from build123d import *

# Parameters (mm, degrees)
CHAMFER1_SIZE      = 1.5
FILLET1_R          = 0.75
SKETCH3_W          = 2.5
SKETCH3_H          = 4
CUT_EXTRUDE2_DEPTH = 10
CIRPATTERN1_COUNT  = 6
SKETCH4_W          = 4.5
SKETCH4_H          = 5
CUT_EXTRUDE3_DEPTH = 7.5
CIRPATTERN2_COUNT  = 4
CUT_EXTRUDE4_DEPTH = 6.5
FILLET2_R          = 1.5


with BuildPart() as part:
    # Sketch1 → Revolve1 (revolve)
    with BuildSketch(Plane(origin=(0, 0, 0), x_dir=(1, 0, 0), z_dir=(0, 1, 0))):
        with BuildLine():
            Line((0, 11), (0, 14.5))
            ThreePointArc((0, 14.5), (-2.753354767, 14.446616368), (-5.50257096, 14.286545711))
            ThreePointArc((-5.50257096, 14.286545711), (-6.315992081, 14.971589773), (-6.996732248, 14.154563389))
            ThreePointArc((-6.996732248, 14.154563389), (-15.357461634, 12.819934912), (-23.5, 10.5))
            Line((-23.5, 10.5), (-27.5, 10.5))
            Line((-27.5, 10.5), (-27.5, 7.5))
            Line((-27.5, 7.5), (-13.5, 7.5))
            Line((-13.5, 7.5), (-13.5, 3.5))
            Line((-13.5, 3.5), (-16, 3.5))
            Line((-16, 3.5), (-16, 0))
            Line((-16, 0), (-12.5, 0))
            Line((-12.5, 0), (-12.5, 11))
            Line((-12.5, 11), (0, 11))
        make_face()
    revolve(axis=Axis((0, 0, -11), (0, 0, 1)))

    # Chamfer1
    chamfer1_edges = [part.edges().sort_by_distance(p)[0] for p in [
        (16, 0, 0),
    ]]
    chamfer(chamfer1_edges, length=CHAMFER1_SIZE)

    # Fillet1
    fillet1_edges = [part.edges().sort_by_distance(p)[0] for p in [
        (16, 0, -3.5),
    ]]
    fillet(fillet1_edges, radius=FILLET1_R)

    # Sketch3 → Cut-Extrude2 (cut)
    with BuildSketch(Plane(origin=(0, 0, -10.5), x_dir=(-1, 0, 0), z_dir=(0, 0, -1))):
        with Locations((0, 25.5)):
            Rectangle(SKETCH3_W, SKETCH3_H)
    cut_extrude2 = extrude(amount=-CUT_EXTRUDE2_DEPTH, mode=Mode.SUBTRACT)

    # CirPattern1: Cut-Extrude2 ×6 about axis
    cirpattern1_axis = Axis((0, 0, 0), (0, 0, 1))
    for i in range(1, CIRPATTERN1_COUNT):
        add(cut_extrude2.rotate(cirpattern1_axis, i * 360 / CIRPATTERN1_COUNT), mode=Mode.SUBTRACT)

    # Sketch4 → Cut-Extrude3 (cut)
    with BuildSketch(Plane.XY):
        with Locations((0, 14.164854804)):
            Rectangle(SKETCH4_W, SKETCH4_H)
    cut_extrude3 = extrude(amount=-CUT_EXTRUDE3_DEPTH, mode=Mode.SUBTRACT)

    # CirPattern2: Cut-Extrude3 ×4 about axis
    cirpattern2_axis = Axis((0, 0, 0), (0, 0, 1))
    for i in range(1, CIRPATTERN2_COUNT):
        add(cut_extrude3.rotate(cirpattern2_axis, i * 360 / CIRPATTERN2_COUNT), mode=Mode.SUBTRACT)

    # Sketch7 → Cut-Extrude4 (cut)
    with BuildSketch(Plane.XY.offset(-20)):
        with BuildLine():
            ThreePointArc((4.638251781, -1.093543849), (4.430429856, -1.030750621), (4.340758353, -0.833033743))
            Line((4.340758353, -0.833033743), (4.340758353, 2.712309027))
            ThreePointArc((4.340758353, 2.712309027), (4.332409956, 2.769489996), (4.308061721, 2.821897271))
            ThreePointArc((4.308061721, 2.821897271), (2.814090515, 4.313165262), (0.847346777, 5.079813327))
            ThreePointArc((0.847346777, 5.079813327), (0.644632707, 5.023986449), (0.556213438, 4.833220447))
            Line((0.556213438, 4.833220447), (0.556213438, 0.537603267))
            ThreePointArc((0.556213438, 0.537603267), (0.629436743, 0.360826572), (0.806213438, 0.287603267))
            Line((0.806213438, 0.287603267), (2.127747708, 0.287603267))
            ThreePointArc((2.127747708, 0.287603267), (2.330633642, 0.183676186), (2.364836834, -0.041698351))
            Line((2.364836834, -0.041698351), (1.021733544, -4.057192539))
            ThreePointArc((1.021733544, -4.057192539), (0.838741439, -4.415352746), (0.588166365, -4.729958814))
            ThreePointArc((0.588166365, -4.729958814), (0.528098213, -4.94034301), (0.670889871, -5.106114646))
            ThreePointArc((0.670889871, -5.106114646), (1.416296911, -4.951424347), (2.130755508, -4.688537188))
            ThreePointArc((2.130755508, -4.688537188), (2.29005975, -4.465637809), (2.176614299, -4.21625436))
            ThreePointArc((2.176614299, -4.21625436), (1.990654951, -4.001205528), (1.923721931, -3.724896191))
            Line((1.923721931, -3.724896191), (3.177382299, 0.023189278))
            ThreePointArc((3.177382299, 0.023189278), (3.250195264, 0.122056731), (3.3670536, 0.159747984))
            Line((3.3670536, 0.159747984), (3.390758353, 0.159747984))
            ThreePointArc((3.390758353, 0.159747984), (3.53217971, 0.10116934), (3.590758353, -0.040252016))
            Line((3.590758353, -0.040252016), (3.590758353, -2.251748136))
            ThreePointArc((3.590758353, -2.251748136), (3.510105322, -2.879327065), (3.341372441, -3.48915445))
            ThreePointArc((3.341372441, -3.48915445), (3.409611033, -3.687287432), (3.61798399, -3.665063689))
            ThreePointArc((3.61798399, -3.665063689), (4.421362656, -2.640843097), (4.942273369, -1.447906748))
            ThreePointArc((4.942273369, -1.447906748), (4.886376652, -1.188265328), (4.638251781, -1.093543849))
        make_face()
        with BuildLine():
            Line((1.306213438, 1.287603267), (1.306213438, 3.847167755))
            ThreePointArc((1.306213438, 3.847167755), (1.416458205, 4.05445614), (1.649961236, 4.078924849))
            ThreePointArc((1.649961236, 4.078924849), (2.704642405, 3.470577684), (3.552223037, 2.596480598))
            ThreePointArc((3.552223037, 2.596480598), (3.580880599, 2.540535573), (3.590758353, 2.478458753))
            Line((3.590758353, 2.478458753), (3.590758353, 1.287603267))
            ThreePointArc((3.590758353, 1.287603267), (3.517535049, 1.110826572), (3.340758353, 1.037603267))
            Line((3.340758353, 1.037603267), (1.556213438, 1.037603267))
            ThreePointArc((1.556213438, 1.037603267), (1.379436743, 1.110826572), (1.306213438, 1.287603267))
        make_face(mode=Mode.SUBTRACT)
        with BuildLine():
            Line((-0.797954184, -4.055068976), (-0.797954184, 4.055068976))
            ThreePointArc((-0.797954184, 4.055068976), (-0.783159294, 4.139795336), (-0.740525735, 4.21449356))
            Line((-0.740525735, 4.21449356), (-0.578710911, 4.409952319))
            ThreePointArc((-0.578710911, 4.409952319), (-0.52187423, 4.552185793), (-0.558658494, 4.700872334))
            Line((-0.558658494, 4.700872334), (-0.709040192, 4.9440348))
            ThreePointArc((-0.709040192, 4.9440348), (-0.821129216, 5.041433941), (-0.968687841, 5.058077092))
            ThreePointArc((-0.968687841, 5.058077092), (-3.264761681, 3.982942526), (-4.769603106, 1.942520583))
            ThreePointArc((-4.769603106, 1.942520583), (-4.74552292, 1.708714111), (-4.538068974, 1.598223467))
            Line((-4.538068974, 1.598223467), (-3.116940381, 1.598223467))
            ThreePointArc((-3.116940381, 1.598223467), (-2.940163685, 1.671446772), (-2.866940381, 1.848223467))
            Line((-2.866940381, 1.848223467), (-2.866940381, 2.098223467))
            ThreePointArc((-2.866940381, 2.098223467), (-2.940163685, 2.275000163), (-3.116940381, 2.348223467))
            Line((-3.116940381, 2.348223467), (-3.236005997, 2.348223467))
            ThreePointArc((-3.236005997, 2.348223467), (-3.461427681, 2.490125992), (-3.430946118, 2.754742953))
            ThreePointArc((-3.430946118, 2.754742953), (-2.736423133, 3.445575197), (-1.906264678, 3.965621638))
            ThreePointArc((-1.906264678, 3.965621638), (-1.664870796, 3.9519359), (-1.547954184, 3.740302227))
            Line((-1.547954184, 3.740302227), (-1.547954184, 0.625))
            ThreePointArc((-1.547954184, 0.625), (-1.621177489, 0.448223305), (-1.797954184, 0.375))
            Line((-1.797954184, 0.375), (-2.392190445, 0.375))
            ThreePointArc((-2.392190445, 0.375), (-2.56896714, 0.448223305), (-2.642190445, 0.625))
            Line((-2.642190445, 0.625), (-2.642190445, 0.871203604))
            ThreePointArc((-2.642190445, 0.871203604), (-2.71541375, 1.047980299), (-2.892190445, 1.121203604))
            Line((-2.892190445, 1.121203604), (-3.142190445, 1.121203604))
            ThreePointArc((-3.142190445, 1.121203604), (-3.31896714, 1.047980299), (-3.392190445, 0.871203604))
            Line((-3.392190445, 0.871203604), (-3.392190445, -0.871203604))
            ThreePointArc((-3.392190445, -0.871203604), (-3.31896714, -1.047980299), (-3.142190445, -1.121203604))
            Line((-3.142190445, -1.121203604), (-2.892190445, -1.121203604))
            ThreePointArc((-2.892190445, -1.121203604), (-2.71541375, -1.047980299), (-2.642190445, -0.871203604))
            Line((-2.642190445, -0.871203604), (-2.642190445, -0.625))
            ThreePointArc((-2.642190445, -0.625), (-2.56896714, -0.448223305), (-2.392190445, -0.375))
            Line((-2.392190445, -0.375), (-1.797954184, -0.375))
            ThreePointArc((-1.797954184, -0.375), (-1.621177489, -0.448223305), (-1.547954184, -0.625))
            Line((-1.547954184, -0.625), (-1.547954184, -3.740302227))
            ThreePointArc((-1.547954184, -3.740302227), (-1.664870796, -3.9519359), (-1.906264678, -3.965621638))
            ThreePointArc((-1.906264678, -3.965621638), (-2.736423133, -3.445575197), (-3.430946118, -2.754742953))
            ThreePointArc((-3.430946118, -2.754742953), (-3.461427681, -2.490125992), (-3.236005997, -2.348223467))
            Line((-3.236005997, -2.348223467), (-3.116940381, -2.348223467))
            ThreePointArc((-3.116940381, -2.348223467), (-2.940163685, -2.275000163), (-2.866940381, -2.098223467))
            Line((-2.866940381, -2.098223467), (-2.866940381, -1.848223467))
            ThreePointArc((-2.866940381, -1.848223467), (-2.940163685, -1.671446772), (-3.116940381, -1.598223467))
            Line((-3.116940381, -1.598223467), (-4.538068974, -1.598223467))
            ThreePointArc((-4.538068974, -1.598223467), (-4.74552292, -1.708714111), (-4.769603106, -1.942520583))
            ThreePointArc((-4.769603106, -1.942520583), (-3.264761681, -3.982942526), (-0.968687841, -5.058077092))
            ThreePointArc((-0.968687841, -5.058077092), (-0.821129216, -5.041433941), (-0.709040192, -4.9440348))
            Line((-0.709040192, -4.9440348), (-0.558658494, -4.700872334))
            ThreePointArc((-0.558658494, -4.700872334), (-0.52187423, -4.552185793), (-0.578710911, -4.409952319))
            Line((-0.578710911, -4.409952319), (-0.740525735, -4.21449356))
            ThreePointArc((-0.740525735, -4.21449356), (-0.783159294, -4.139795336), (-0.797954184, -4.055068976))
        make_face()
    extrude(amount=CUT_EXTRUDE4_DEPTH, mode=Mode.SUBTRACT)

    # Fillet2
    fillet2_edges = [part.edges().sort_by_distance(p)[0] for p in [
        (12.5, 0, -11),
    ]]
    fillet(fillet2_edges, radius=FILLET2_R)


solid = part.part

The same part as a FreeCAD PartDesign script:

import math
import FreeCAD as App
import Part
import Sketcher

V = App.Vector


def edges_at(feature, points):
    """Names of the edges that pass closest to the given points."""
    edges = feature.Shape.Edges
    near = lambda p: min(range(len(edges)), key=lambda i: edges[i].distToShape(Part.Vertex(*p))[0])
    return sorted({f"Edge{near(p) + 1}" for p in points})

doc = App.newDocument("Part")
body = doc.addObject("PartDesign::Body", "Body")

sketch1 = body.newObject("Sketcher::SketchObject", "Sketch")
sketch1.AttachmentSupport = (doc.getObject("XZ_Plane"), [""])
sketch1.MapMode = "FlatFace"
sketch1.addGeometry([
    Part.LineSegment(V(0, -11, 0), V(0, -14.5, 0)),
    Part.ArcOfCircle(Part.Circle(V(0, 56.5, 0), V(0, 0, 1), 71), math.radians(-94.44), math.radians(-90)),
    Part.ArcOfCircle(Part.Circle(V(-6.2, -14.2, 0), V(0, 0, 1), 0.8), math.radians(175), math.radians(355)),
    Part.ArcOfCircle(Part.Circle(V(0, 56.5, 0), V(0, 0, 1), 71), math.radians(-109.32), math.radians(-95.65)),
    Part.LineSegment(V(-23.5, -10.5, 0), V(-27.5, -10.5, 0)),
    Part.LineSegment(V(-27.5, -10.5, 0), V(-27.5, -7.5, 0)),
    Part.LineSegment(V(-27.5, -7.5, 0), V(-13.5, -7.5, 0)),
    Part.LineSegment(V(-13.5, -7.5, 0), V(-13.5, -3.5, 0)),
    Part.LineSegment(V(-13.5, -3.5, 0), V(-16, -3.5, 0)),
    Part.LineSegment(V(-16, -3.5, 0), V(-16, 0, 0)),
    Part.LineSegment(V(-16, 0, 0), V(-12.5, 0, 0)),
    Part.LineSegment(V(-12.5, 0, 0), V(-12.5, -11, 0)),
    Part.LineSegment(V(-12.5, -11, 0), V(0, -11, 0)),
], False)
sketch1.addConstraint([
    Sketcher.Constraint("Coincident", 0, 2, 1, 2),
    Sketcher.Constraint("Coincident", 1, 1, 2, 2),
    Sketcher.Constraint("Coincident", 2, 1, 3, 2),
    Sketcher.Constraint("Coincident", 3, 1, 4, 1),
    Sketcher.Constraint("Coincident", 4, 2, 5, 1),
    Sketcher.Constraint("Coincident", 5, 2, 6, 1),
    Sketcher.Constraint("Coincident", 6, 2, 7, 1),
    Sketcher.Constraint("Coincident", 7, 2, 8, 1),
    Sketcher.Constraint("Coincident", 8, 2, 9, 1),
    Sketcher.Constraint("Coincident", 9, 2, 10, 1),
    Sketcher.Constraint("Coincident", 10, 2, 11, 1),
    Sketcher.Constraint("Coincident", 11, 2, 12, 1),
    Sketcher.Constraint("Coincident", 12, 2, 0, 1),
    Sketcher.Constraint("Vertical", 0),
    Sketcher.Constraint("Horizontal", 4),
    Sketcher.Constraint("Vertical", 5),
    Sketcher.Constraint("Horizontal", 6),
    Sketcher.Constraint("Vertical", 7),
    Sketcher.Constraint("Horizontal", 8),
    Sketcher.Constraint("Vertical", 9),
    Sketcher.Constraint("Horizontal", 10),
    Sketcher.Constraint("Vertical", 11),
    Sketcher.Constraint("Horizontal", 12),
    Sketcher.Constraint("Coincident", 3, 3, 1, 3),
    Sketcher.Constraint("Equal", 1, 3),
    Sketcher.Constraint("PointOnObject", 1, 3, -2),
    Sketcher.Constraint("PointOnObject", 0, 2, -2),
    Sketcher.Constraint("PointOnObject", 9, 2, -1),
    Sketcher.Constraint("Equal", 10, 0),
    Sketcher.Constraint("Equal", 4, 7),
    Sketcher.Constraint("Equal", 0, 9),
    Sketcher.Constraint("DistanceX", 4, 2, 4, 1, 4.0),
    Sketcher.Constraint("DistanceX", 6, 1, 6, 2, 14.0),
    Sketcher.Constraint("DistanceY", 5, 1, 5, 2, 3.0),
    Sketcher.Constraint("DistanceY", 11, 2, 11, 1, 11.0),
    Sketcher.Constraint("Radius", 2, 0.75),
    Sketcher.Constraint("DistanceX", 8, 2, 8, 1, 2.5),
    Sketcher.Constraint("DistanceX", 10, 1, 10, 2, 3.5),
    Sketcher.Constraint("DistanceX", 12, 1, 12, 2, 12.5),
    Sketcher.Constraint("DistanceX", 2, 3, -1, 1, 6.25),
    Sketcher.Constraint("DistanceY", 2, 3, -1, 1, 14.224499),
])
revolution = body.newObject("PartDesign::Revolution", "Revolution")
revolution.Profile = sketch1
revolution.ReferenceAxis = (sketch1, ["V_Axis"])
revolution.Angle = 360
doc.recompute()

chamfer = body.newObject("PartDesign::Chamfer", "Chamfer")
chamfer.Base = (revolution, edges_at(revolution, [(16, 0, 0)]))
chamfer.Size = 1.5
doc.recompute()

fillet = body.newObject("PartDesign::Fillet", "Fillet")
fillet.Base = (chamfer, edges_at(chamfer, [(16, 0, -3.5)]))
fillet.Radius = 0.75

sketch2 = body.newObject("Sketcher::SketchObject", "Sketch001")
sketch2.AttachmentSupport = (doc.getObject("XY_Plane"), [""])
sketch2.MapMode = "FlatFace"
sketch2.AttachmentOffset = App.Placement(V(0, 0, -10.5), App.Rotation())
sketch2.addGeometry([
    Part.LineSegment(V(1.2, 27.5, 0), V(1.2, 23.5, 0)),
    Part.LineSegment(V(1.2, 23.5, 0), V(-1.2, 23.5, 0)),
    Part.LineSegment(V(-1.2, 23.5, 0), V(-1.2, 27.5, 0)),
    Part.LineSegment(V(-1.2, 27.5, 0), V(1.2, 27.5, 0)),
], False)
sketch2.addConstraint([
    Sketcher.Constraint("Coincident", 0, 2, 1, 1),
    Sketcher.Constraint("Coincident", 1, 2, 2, 1),
    Sketcher.Constraint("Coincident", 2, 2, 3, 1),
    Sketcher.Constraint("Coincident", 3, 2, 0, 1),
    Sketcher.Constraint("Vertical", 0),
    Sketcher.Constraint("Horizontal", 1),
    Sketcher.Constraint("Vertical", 2),
    Sketcher.Constraint("Horizontal", 3),
    Sketcher.Constraint("DistanceY", 0, 2, 0, 1, 4.0),
    Sketcher.Constraint("DistanceX", 1, 2, 1, 1, 2.5),
    Sketcher.Constraint("DistanceY", -1, 1, 0, 2, 23.5),
    Sketcher.Constraint("DistanceX", -1, 1, 0, 2, 1.25),
])
pocket1 = body.newObject("PartDesign::Pocket", "Pocket")
pocket1.Profile = sketch2
pocket1.Length = 10
pocket1.Reversed = True
doc.recompute()

polarpattern = body.newObject("PartDesign::PolarPattern", "PolarPattern")
polarpattern.Originals = [pocket1]
polarpattern.Axis = (doc.getObject("Z_Axis"), [""])
polarpattern.Angle = 360
polarpattern.Occurrences = 6
body.Tip = polarpattern

sketch3 = body.newObject("Sketcher::SketchObject", "Sketch002")
sketch3.AttachmentSupport = (doc.getObject("XY_Plane"), [""])
sketch3.MapMode = "FlatFace"
sketch3.addGeometry([
    Part.LineSegment(V(-2.2, 16.7, 0), V(-2.2, 11.7, 0)),
    Part.LineSegment(V(-2.2, 11.7, 0), V(2.2, 11.7, 0)),
    Part.LineSegment(V(2.2, 11.7, 0), V(2.2, 16.7, 0)),
    Part.LineSegment(V(2.2, 16.7, 0), V(-2.2, 16.7, 0)),
], False)
sketch3.addConstraint([
    Sketcher.Constraint("Coincident", 0, 2, 1, 1),
    Sketcher.Constraint("Coincident", 1, 2, 2, 1),
    Sketcher.Constraint("Coincident", 2, 2, 3, 1),
    Sketcher.Constraint("Coincident", 3, 2, 0, 1),
    Sketcher.Constraint("Vertical", 0),
    Sketcher.Constraint("Horizontal", 1),
    Sketcher.Constraint("Vertical", 2),
    Sketcher.Constraint("Horizontal", 3),
    Sketcher.Constraint("DistanceY", 0, 2, 0, 1, 5.0),
    Sketcher.Constraint("DistanceX", 1, 1, 1, 2, 4.5),
    Sketcher.Constraint("DistanceX", 0, 2, -1, 1, 2.25),
    Sketcher.Constraint("DistanceY", -1, 1, 0, 2, 11.664855),
])
pocket2 = body.newObject("PartDesign::Pocket", "Pocket001")
pocket2.Profile = sketch3
pocket2.Length = 7.5
doc.recompute()

polarpattern2 = body.newObject("PartDesign::PolarPattern", "PolarPattern001")
polarpattern2.Originals = [pocket2]
polarpattern2.Axis = (doc.getObject("Z_Axis"), [""])
polarpattern2.Angle = 360
polarpattern2.Occurrences = 4
body.Tip = polarpattern2

sketch4 = body.newObject("Sketcher::SketchObject", "Sketch003")
sketch4.AttachmentSupport = (doc.getObject("XY_Plane"), [""])
sketch4.MapMode = "FlatFace"
sketch4.AttachmentOffset = App.Placement(V(0, 0, -20), App.Rotation())
sketch4.addGeometry([
    Part.ArcOfCircle(Part.Circle(V(4.604, -0.833, 0), V(0, 0, 1), 0.263), math.radians(180), math.radians(278)),
    Part.LineSegment(V(4.341, -0.833, 0), V(4.341, 2.712, 0)),
    Part.ArcOfCircle(Part.Circle(V(4.141, 2.712, 0), V(0, 0, 1), 0.2), math.radians(0), math.radians(33)),
    Part.ArcOfCircle(Part.Circle(V(0, 0, 0), V(0, 0, 1), 5.15), math.radians(33), math.radians(81)),
    Part.ArcOfCircle(Part.Circle(V(0.806, 4.833, 0), V(0, 0, 1), 0.25), math.radians(81), math.radians(180)),
    Part.LineSegment(V(0.556, 4.833, 0), V(0.556, 0.538, 0)),
    Part.ArcOfCircle(Part.Circle(V(0.806, 0.538, 0), V(0, 0, 1), 0.25), math.radians(-180), math.radians(-90)),
    Part.LineSegment(V(0.806, 0.288, 0), V(2.128, 0.288, 0)),
    Part.ArcOfCircle(Part.Circle(V(2.128, 0.038, 0), V(0, 0, 1), 0.25), math.radians(-18), math.radians(90)),
    Part.LineSegment(V(2.365, -0.042, 0), V(1.022, -4.057, 0)),
    Part.ArcOfCircle(Part.Circle(V(-0.852, -3.325, 0), V(0, 0, 1), 2.012), math.radians(-44), math.radians(-21)),
    Part.ArcOfCircle(Part.Circle(V(0.753, -4.891, 0), V(0, 0, 1), 0.23), math.radians(136), math.radians(249)),
    Part.ArcOfCircle(Part.Circle(V(0, 0, 0), V(0, 0, 1), 5.15), math.radians(-82.51), math.radians(-65.56)),
    Part.ArcOfCircle(Part.Circle(V(2.017, -4.439, 0), V(0, 0, 1), 0.274), math.radians(-66), math.radians(54)),
    Part.ArcOfCircle(Part.Circle(V(2.528, -3.725, 0), V(0, 0, 1), 0.604), math.radians(-180), math.radians(-126)),
    Part.LineSegment(V(1.924, -3.725, 0), V(3.177, 0.023, 0)),
    Part.ArcOfCircle(Part.Circle(V(3.367, -0.04, 0), V(0, 0, 1), 0.2), math.radians(90), math.radians(162)),
    Part.LineSegment(V(3.367, 0.16, 0), V(3.391, 0.16, 0)),
    Part.ArcOfCircle(Part.Circle(V(3.391, -0.04, 0), V(0, 0, 1), 0.2), math.radians(0), math.radians(90)),
    Part.LineSegment(V(3.591, -0.04, 0), V(3.591, -2.252, 0)),
    Part.ArcOfCircle(Part.Circle(V(-0.858, -1.999, 0), V(0, 0, 1), 4.456), math.radians(-19.54), math.radians(-3.25)),
    Part.ArcOfCircle(Part.Circle(V(3.5, -3.545, 0), V(0, 0, 1), 0.168), math.radians(160), math.radians(315)),
    Part.ArcOfCircle(Part.Circle(V(0, 0, 0), V(0, 0, 1), 5.15), math.radians(-45), math.radians(-16)),
    Part.ArcOfCircle(Part.Circle(V(4.675, -1.37, 0), V(0, 0, 1), 0.278), math.radians(-16), math.radians(98)),
    Part.ArcOfCircle(Part.Circle(V(1.556, 1.288, 0), V(0, 0, 1), 0.25), math.radians(-180), math.radians(-90)),
    Part.LineSegment(V(1.306, 1.288, 0), V(1.306, 3.847, 0)),
    Part.ArcOfCircle(Part.Circle(V(1.556, 3.847, 0), V(0, 0, 1), 0.25), math.radians(68), math.radians(180)),
    Part.ArcOfCircle(Part.Circle(V(0, 0, 0), V(0, 0, 1), 4.4), math.radians(36), math.radians(68)),
    Part.ArcOfCircle(Part.Circle(V(3.391, 2.478, 0), V(0, 0, 1), 0.2), math.radians(0), math.radians(36)),
    Part.LineSegment(V(3.591, 2.478, 0), V(3.591, 1.288, 0)),
    Part.ArcOfCircle(Part.Circle(V(3.341, 1.288, 0), V(0, 0, 1), 0.25), math.radians(-90), math.radians(0)),
    Part.LineSegment(V(3.341, 1.038, 0), V(1.556, 1.038, 0)),
    Part.LineSegment(V(-0.798, -4.055, 0), V(-0.798, 4.055, 0)),
    Part.ArcOfCircle(Part.Circle(V(-0.548, 4.055, 0), V(0, 0, 1), 0.25), math.radians(140), math.radians(180)),
    Part.LineSegment(V(-0.741, 4.214, 0), V(-0.579, 4.41, 0)),
    Part.ArcOfCircle(Part.Circle(V(-0.771, 4.569, 0), V(0, 0, 1), 0.25), math.radians(-40), math.radians(32)),
    Part.LineSegment(V(-0.559, 4.701, 0), V(-0.709, 4.944, 0)),
    Part.ArcOfCircle(Part.Circle(V(-0.922, 4.813, 0), V(0, 0, 1), 0.25), math.radians(32), math.radians(101)),
    Part.ArcOfCircle(Part.Circle(V(0, 0, 0), V(0, 0, 1), 5.15), math.radians(101), math.radians(158)),
    Part.ArcOfCircle(Part.Circle(V(-4.538, 1.848, 0), V(0, 0, 1), 0.25), math.radians(158), math.radians(270)),
    Part.LineSegment(V(-4.538, 1.598, 0), V(-3.117, 1.598, 0)),
    Part.ArcOfCircle(Part.Circle(V(-3.117, 1.848, 0), V(0, 0, 1), 0.25), math.radians(-90), math.radians(0)),
    Part.LineSegment(V(-2.867, 1.848, 0), V(-2.867, 2.098, 0)),
    Part.ArcOfCircle(Part.Circle(V(-3.117, 2.098, 0), V(0, 0, 1), 0.25), math.radians(0), math.radians(90)),
    Part.LineSegment(V(-3.117, 2.348, 0), V(-3.236, 2.348, 0)),
    Part.ArcOfCircle(Part.Circle(V(-3.236, 2.598, 0), V(0, 0, 1), 0.25), math.radians(141), math.radians(270)),
    Part.ArcOfCircle(Part.Circle(V(0, 0, 0), V(0, 0, 1), 4.4), math.radians(116), math.radians(141)),
    Part.ArcOfCircle(Part.Circle(V(-1.798, 3.74, 0), V(0, 0, 1), 0.25), math.radians(0), math.radians(116)),
    Part.LineSegment(V(-1.548, 3.74, 0), V(-1.548, 0.625, 0)),
    Part.ArcOfCircle(Part.Circle(V(-1.798, 0.625, 0), V(0, 0, 1), 0.25), math.radians(-90), math.radians(0)),
    Part.LineSegment(V(-1.798, 0.375, 0), V(-2.392, 0.375, 0)),
    Part.ArcOfCircle(Part.Circle(V(-2.392, 0.625, 0), V(0, 0, 1), 0.25), math.radians(-180), math.radians(-90)),
    Part.LineSegment(V(-2.642, 0.625, 0), V(-2.642, 0.871, 0)),
    Part.ArcOfCircle(Part.Circle(V(-2.892, 0.871, 0), V(0, 0, 1), 0.25), math.radians(0), math.radians(90)),
    Part.LineSegment(V(-2.892, 1.121, 0), V(-3.142, 1.121, 0)),
    Part.ArcOfCircle(Part.Circle(V(-3.142, 0.871, 0), V(0, 0, 1), 0.25), math.radians(90), math.radians(180)),
    Part.LineSegment(V(-3.392, 0.871, 0), V(-3.392, -0.871, 0)),
    Part.ArcOfCircle(Part.Circle(V(-3.142, -0.871, 0), V(0, 0, 1), 0.25), math.radians(-180), math.radians(-90)),
    Part.LineSegment(V(-3.142, -1.121, 0), V(-2.892, -1.121, 0)),
    Part.ArcOfCircle(Part.Circle(V(-2.892, -0.871, 0), V(0, 0, 1), 0.25), math.radians(-90), math.radians(0)),
    Part.LineSegment(V(-2.642, -0.871, 0), V(-2.642, -0.625, 0)),
    Part.ArcOfCircle(Part.Circle(V(-2.392, -0.625, 0), V(0, 0, 1), 0.25), math.radians(90), math.radians(180)),
    Part.LineSegment(V(-2.392, -0.375, 0), V(-1.798, -0.375, 0)),
    Part.ArcOfCircle(Part.Circle(V(-1.798, -0.625, 0), V(0, 0, 1), 0.25), math.radians(0), math.radians(90)),
    Part.LineSegment(V(-1.548, -0.625, 0), V(-1.548, -3.74, 0)),
    Part.ArcOfCircle(Part.Circle(V(-1.798, -3.74, 0), V(0, 0, 1), 0.25), math.radians(-116), math.radians(0)),
    Part.ArcOfCircle(Part.Circle(V(0, 0, 0), V(0, 0, 1), 4.4), math.radians(-141), math.radians(-116)),
    Part.ArcOfCircle(Part.Circle(V(-3.236, -2.598, 0), V(0, 0, 1), 0.25), math.radians(90), math.radians(219)),
    Part.LineSegment(V(-3.236, -2.348, 0), V(-3.117, -2.348, 0)),
    Part.ArcOfCircle(Part.Circle(V(-3.117, -2.098, 0), V(0, 0, 1), 0.25), math.radians(-90), math.radians(0)),
    Part.LineSegment(V(-2.867, -2.098, 0), V(-2.867, -1.848, 0)),
    Part.ArcOfCircle(Part.Circle(V(-3.117, -1.848, 0), V(0, 0, 1), 0.25), math.radians(0), math.radians(90)),
    Part.LineSegment(V(-3.117, -1.598, 0), V(-4.538, -1.598, 0)),
    Part.ArcOfCircle(Part.Circle(V(-4.538, -1.848, 0), V(0, 0, 1), 0.25), math.radians(90), math.radians(202)),
    Part.ArcOfCircle(Part.Circle(V(0, 0, 0), V(0, 0, 1), 5.15), math.radians(-158), math.radians(-101)),
    Part.ArcOfCircle(Part.Circle(V(-0.922, -4.813, 0), V(0, 0, 1), 0.25), math.radians(-101), math.radians(-32)),
    Part.LineSegment(V(-0.709, -4.944, 0), V(-0.559, -4.701, 0)),
    Part.ArcOfCircle(Part.Circle(V(-0.771, -4.569, 0), V(0, 0, 1), 0.25), math.radians(-32), math.radians(40)),
    Part.LineSegment(V(-0.579, -4.41, 0), V(-0.741, -4.214, 0)),
    Part.ArcOfCircle(Part.Circle(V(-0.548, -4.055, 0), V(0, 0, 1), 0.25), math.radians(-180), math.radians(-140)),
], False)
sketch4.addConstraint([
    Sketcher.Constraint("Tangent", 0, 1, 1, 1),
    Sketcher.Constraint("Tangent", 1, 2, 2, 1),
    Sketcher.Constraint("Tangent", 2, 2, 3, 1),
    Sketcher.Constraint("Tangent", 3, 2, 4, 1),
    Sketcher.Constraint("Tangent", 4, 2, 5, 1),
    Sketcher.Constraint("Tangent", 5, 2, 6, 1),
    Sketcher.Constraint("Tangent", 6, 2, 7, 1),
    Sketcher.Constraint("Tangent", 7, 2, 8, 2),
    Sketcher.Constraint("Tangent", 8, 1, 9, 1),
    Sketcher.Constraint("Coincident", 9, 2, 10, 2),
    Sketcher.Constraint("Tangent", 10, 1, 11, 1),
    Sketcher.Constraint("Coincident", 11, 2, 12, 1),
    Sketcher.Constraint("Tangent", 12, 2, 13, 1),
    Sketcher.Constraint("Tangent", 13, 2, 14, 2),
    Sketcher.Constraint("Coincident", 14, 1, 15, 1),
    Sketcher.Constraint("Tangent", 15, 2, 16, 2),
    Sketcher.Constraint("Tangent", 16, 1, 17, 1),
    Sketcher.Constraint("Tangent", 17, 2, 18, 2),
    Sketcher.Constraint("Tangent", 18, 1, 19, 1),
    Sketcher.Constraint("Coincident", 19, 2, 20, 2),
    Sketcher.Constraint("Tangent", 20, 1, 21, 1),
    Sketcher.Constraint("Tangent", 21, 2, 22, 1),
    Sketcher.Constraint("Tangent", 22, 2, 23, 1),
    Sketcher.Constraint("Tangent", 23, 2, 0, 2),
    Sketcher.Constraint("Tangent", 24, 1, 25, 1),
    Sketcher.Constraint("Tangent", 25, 2, 26, 2),
    Sketcher.Constraint("Tangent", 26, 1, 27, 2),
    Sketcher.Constraint("Tangent", 27, 1, 28, 2),
    Sketcher.Constraint("Tangent", 28, 1, 29, 1),
    Sketcher.Constraint("Tangent", 29, 2, 30, 2),
    Sketcher.Constraint("Tangent", 30, 1, 31, 1),
    Sketcher.Constraint("Tangent", 31, 2, 24, 2),
    Sketcher.Constraint("Tangent", 32, 2, 33, 2),
    Sketcher.Constraint("Tangent", 33, 1, 34, 1),
    Sketcher.Constraint("Tangent", 34, 2, 35, 1),
    Sketcher.Constraint("Tangent", 35, 2, 36, 1),
    Sketcher.Constraint("Tangent", 36, 2, 37, 1),
    Sketcher.Constraint("Tangent", 37, 2, 38, 1),
    Sketcher.Constraint("Tangent", 38, 2, 39, 1),
    Sketcher.Constraint("Tangent", 39, 2, 40, 1),
    Sketcher.Constraint("Tangent", 40, 2, 41, 1),
    Sketcher.Constraint("Tangent", 41, 2, 42, 1),
    Sketcher.Constraint("Tangent", 42, 2, 43, 1),
    Sketcher.Constraint("Tangent", 43, 2, 44, 1),
    Sketcher.Constraint("Tangent", 44, 2, 45, 2),
    Sketcher.Constraint("Tangent", 45, 1, 46, 2),
    Sketcher.Constraint("Tangent", 46, 1, 47, 2),
    Sketcher.Constraint("Tangent", 47, 1, 48, 1),
    Sketcher.Constraint("Tangent", 48, 2, 49, 2),
    Sketcher.Constraint("Tangent", 49, 1, 50, 1),
    Sketcher.Constraint("Tangent", 50, 2, 51, 2),
    Sketcher.Constraint("Tangent", 51, 1, 52, 1),
    Sketcher.Constraint("Tangent", 52, 2, 53, 1),
    Sketcher.Constraint("Tangent", 53, 2, 54, 1),
    Sketcher.Constraint("Tangent", 54, 2, 55, 1),
    Sketcher.Constraint("Tangent", 55, 2, 56, 1),
    Sketcher.Constraint("Tangent", 56, 2, 57, 1),
    Sketcher.Constraint("Tangent", 57, 2, 58, 1),
    Sketcher.Constraint("Tangent", 58, 2, 59, 1),
    Sketcher.Constraint("Tangent", 59, 2, 60, 1),
    Sketcher.Constraint("Tangent", 60, 2, 61, 2),
    Sketcher.Constraint("Tangent", 61, 1, 62, 1),
    Sketcher.Constraint("Tangent", 62, 2, 63, 2),
    Sketcher.Constraint("Tangent", 63, 1, 64, 1),
    Sketcher.Constraint("Tangent", 64, 2, 65, 2),
    Sketcher.Constraint("Tangent", 65, 1, 66, 2),
    Sketcher.Constraint("Tangent", 66, 1, 67, 2),
    Sketcher.Constraint("Tangent", 67, 1, 68, 1),
    Sketcher.Constraint("Tangent", 68, 2, 69, 1),
    Sketcher.Constraint("Tangent", 69, 2, 70, 1),
    Sketcher.Constraint("Tangent", 70, 2, 71, 1),
    Sketcher.Constraint("Tangent", 71, 2, 72, 1),
    Sketcher.Constraint("Tangent", 72, 2, 73, 1),
    Sketcher.Constraint("Tangent", 73, 2, 74, 1),
    Sketcher.Constraint("Tangent", 74, 2, 75, 1),
    Sketcher.Constraint("Tangent", 75, 2, 76, 1),
    Sketcher.Constraint("Tangent", 76, 2, 77, 1),
    Sketcher.Constraint("Tangent", 77, 2, 78, 1),
    Sketcher.Constraint("Tangent", 78, 2, 79, 2),
    Sketcher.Constraint("Tangent", 79, 1, 32, 1),
    Sketcher.Constraint("Vertical", 1),
    Sketcher.Constraint("Vertical", 5),
    Sketcher.Constraint("Horizontal", 7),
    Sketcher.Constraint("Horizontal", 17),
    Sketcher.Constraint("Vertical", 19),
    Sketcher.Constraint("Vertical", 25),
    Sketcher.Constraint("Vertical", 29),
    Sketcher.Constraint("Horizontal", 31),
    Sketcher.Constraint("Vertical", 32),
    Sketcher.Constraint("Horizontal", 40),
    Sketcher.Constraint("Vertical", 42),
    Sketcher.Constraint("Horizontal", 44),
    Sketcher.Constraint("Vertical", 48),
    Sketcher.Constraint("Horizontal", 50),
    Sketcher.Constraint("Vertical", 52),
    Sketcher.Constraint("Horizontal", 54),
    Sketcher.Constraint("Vertical", 56),
    Sketcher.Constraint("Horizontal", 58),
    Sketcher.Constraint("Vertical", 60),
    Sketcher.Constraint("Horizontal", 62),
    Sketcher.Constraint("Vertical", 64),
    Sketcher.Constraint("Horizontal", 68),
    Sketcher.Constraint("Vertical", 70),
    Sketcher.Constraint("Horizontal", 72),
    Sketcher.Constraint("Coincident", 3, 3, -1, 1),
    Sketcher.Constraint("Coincident", 12, 3, -1, 1),
    Sketcher.Constraint("Coincident", 22, 3, -1, 1),
    Sketcher.Constraint("Coincident", 27, 3, -1, 1),
    Sketcher.Constraint("Coincident", 38, 3, -1, 1),
    Sketcher.Constraint("Coincident", 46, 3, -1, 1),
    Sketcher.Constraint("Coincident", 66, 3, -1, 1),
    Sketcher.Constraint("Coincident", 74, 3, -1, 1),
    Sketcher.Constraint("Equal", 4, 6),
    Sketcher.Constraint("Equal", 6, 8),
    Sketcher.Constraint("Equal", 3, 12),
    Sketcher.Constraint("Equal", 2, 16),
    Sketcher.Constraint("Equal", 16, 18),
    Sketcher.Constraint("Equal", 12, 22),
    Sketcher.Constraint("Equal", 8, 24),
    Sketcher.Constraint("Equal", 24, 26),
    Sketcher.Constraint("Equal", 18, 28),
    Sketcher.Constraint("Equal", 26, 30),
    Sketcher.Constraint("Equal", 30, 33),
    Sketcher.Constraint("Equal", 33, 35),
    Sketcher.Constraint("Equal", 35, 37),
    Sketcher.Constraint("Equal", 22, 38),
    Sketcher.Constraint("Equal", 37, 39),
    Sketcher.Constraint("Equal", 39, 41),
    Sketcher.Constraint("Equal", 41, 43),
    Sketcher.Constraint("Equal", 43, 45),
    Sketcher.Constraint("Equal", 27, 46),
    Sketcher.Constraint("Equal", 45, 47),
    Sketcher.Constraint("Equal", 47, 49),
    Sketcher.Constraint("Equal", 49, 51),
    Sketcher.Constraint("Equal", 51, 53),
    Sketcher.Constraint("Equal", 53, 55),
    Sketcher.Constraint("Equal", 55, 57),
    Sketcher.Constraint("Equal", 57, 59),
    Sketcher.Constraint("Equal", 59, 61),
    Sketcher.Constraint("Equal", 61, 63),
    Sketcher.Constraint("Equal", 63, 65),
    Sketcher.Constraint("Equal", 46, 66),
    Sketcher.Constraint("Equal", 65, 67),
    Sketcher.Constraint("Equal", 67, 69),
    Sketcher.Constraint("Equal", 69, 71),
    Sketcher.Constraint("Equal", 71, 73),
    Sketcher.Constraint("Equal", 38, 74),
    Sketcher.Constraint("Equal", 73, 75),
    Sketcher.Constraint("Equal", 75, 77),
    Sketcher.Constraint("Equal", 77, 79),
    Sketcher.Constraint("Symmetric", 53, 3, 59, 3, -1),
    Sketcher.Constraint("Symmetric", 49, 3, 63, 3, -1),
    Sketcher.Constraint("Symmetric", 43, 3, 69, 3, -1),
    Sketcher.Constraint("Symmetric", 35, 3, 77, 3, -1),
    Sketcher.Constraint("Parallel", 9, 15),
    Sketcher.Constraint("Vertical", 18, 3, 28, 3),
    Sketcher.Constraint("Vertical", 39, 3, 73, 3),
    Sketcher.Constraint("Vertical", 37, 3, 75, 3),
    Sketcher.Constraint("Vertical", 34, 2, 77, 2),
    Sketcher.Constraint("Equal", 58, 42),
    Sketcher.Constraint("Radius", 2, 0.2),
    Sketcher.Constraint("Radius", 27, 4.4),
    Sketcher.Constraint("Radius", 3, 5.15),
    Sketcher.Constraint("Radius", 4, 0.25),
    Sketcher.Constraint("DistanceX", 54, 2, 54, 1, 0.25),
    Sketcher.Constraint("Radius", 23, 0.2785),
    Sketcher.Constraint("Radius", 0, 0.262809),
    Sketcher.Constraint("Radius", 10, 2.01196),
    Sketcher.Constraint("Radius", 14, 0.603789),
    Sketcher.Constraint("Radius", 20, 4.455831),
    Sketcher.Constraint("Radius", 21, 0.168159),
    Sketcher.Constraint("DistanceY", -1, 1, 49, 3, 0.625),
    Sketcher.Constraint("Radius", 11, 0.230467),
    Sketcher.Constraint("Radius", 13, 0.273916),
    Sketcher.Constraint("DistanceX", 40, 1, 40, 2, 1.421129),
    Sketcher.Constraint("DistanceX", 20, 3, -1, 1, 0.857898),
    Sketcher.Constraint("DistanceY", 8, 1, -1, 1, 0.041698),
    Sketcher.Constraint("Distance", 9, 4.234161),
    Sketcher.Constraint("Distance", 15, 3.95219),
    Sketcher.Constraint("Distance", 34, 0.253748),
    Sketcher.Constraint("DistanceX", 7, 1, 7, 2, 1.321534),
    Sketcher.Constraint("DistanceX", 17, 1, 17, 2, 0.023705),
    Sketcher.Constraint("DistanceX", 31, 2, 31, 1, 1.784545),
    Sketcher.Constraint("DistanceX", 44, 2, 44, 1, 0.119066),
    Sketcher.Constraint("DistanceX", 50, 2, 50, 1, 0.594236),
    Sketcher.Constraint("DistanceY", 1, 1, 1, 2, 3.545343),
    Sketcher.Constraint("DistanceY", 5, 2, 5, 1, 4.295617),
    Sketcher.Constraint("DistanceY", 19, 2, 19, 1, 2.211496),
    Sketcher.Constraint("DistanceY", 25, 1, 25, 2, 2.559564),
    Sketcher.Constraint("DistanceY", 29, 2, 29, 1, 1.190855),
    Sketcher.Constraint("DistanceY", 32, 1, 32, 2, 8.110138),
    Sketcher.Constraint("DistanceY", 48, 2, 48, 1, 3.115302),
    Sketcher.Constraint("DistanceY", 52, 1, 52, 2, 0.246204),
    Sketcher.Constraint("DistanceX", -1, 1, 2, 3, 4.140758),
    Sketcher.Constraint("DistanceY", -1, 1, 4, 3, 4.83322),
    Sketcher.Constraint("DistanceY", 10, 3, -1, 1, 3.325459),
    Sketcher.Constraint("DistanceX", -1, 1, 21, 3, 3.499849),
    Sketcher.Constraint("DistanceY", -1, 1, 37, 3, 4.812539),
    Sketcher.Constraint("DistanceY", 10, 1, -1, 1, 4.729959),
    Sketcher.Constraint("DistanceX", 34, 2, -1, 1, 0.578711),
    Sketcher.Constraint("DistanceX", 35, 2, -1, 1, 0.558658),
    Sketcher.Constraint("DistanceX", -1, 1, 13, 3, 2.017426),
])
pocket3 = body.newObject("PartDesign::Pocket", "Pocket002")
pocket3.Profile = sketch4
pocket3.Length = 6.5
pocket3.Reversed = True
doc.recompute()

fillet2 = body.newObject("PartDesign::Fillet", "Fillet001")
fillet2.Base = (pocket3, edges_at(pocket3, [(12.5, 0, -11)]))
fillet2.Radius = 1.5

doc.recompute()
